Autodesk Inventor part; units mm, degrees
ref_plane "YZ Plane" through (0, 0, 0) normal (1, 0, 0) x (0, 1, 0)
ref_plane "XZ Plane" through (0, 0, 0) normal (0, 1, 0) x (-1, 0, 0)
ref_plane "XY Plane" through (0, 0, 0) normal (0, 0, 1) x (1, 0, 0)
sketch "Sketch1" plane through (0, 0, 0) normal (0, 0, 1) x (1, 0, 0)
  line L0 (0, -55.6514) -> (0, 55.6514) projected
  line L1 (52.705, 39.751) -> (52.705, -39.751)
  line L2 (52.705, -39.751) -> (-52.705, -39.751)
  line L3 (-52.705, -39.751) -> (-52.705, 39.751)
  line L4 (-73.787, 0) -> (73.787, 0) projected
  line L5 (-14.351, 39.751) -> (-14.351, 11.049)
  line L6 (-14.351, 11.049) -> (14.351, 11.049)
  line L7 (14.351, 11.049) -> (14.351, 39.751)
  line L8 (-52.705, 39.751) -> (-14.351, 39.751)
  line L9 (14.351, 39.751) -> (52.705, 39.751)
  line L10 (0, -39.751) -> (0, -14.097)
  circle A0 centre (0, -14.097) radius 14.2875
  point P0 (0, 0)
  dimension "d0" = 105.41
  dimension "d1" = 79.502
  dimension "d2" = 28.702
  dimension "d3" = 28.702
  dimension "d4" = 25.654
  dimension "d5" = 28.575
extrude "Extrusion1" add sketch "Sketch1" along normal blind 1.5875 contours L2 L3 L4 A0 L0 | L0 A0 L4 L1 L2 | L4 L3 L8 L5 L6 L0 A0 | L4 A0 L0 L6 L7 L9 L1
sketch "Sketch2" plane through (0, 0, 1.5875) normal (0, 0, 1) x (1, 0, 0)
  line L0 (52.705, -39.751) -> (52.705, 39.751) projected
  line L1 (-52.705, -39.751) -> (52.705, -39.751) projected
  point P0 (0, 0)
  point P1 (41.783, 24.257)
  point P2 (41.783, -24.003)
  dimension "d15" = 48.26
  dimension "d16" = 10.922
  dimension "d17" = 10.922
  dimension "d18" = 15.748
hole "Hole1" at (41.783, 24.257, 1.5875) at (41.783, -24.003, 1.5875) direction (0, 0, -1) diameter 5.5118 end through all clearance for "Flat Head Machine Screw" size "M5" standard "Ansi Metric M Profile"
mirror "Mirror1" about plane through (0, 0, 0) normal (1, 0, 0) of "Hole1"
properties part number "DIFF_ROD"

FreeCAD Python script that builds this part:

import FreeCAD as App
import Part
import Sketcher
Q = App.Units.Quantity

doc = App.newDocument("Part")
body = doc.addObject("PartDesign::Body", "Body")

# Sketch on XY plane
sketch1 = body.newObject("Sketcher::SketchObject", "Sketch")
sketch1.AttachmentSupport = (doc.getObject("XY_Plane"), [""])
sketch1.MapMode = "FlatFace"
sketch1.addGeometry(Part.LineSegment(App.Vector(-53, -40, 0), App.Vector(53, -40, 0)), False)
sketch1.addGeometry(Part.LineSegment(App.Vector(53, -40, 0), App.Vector(53, 40, 0)), False)
sketch1.addGeometry(Part.LineSegment(App.Vector(53, 40, 0), App.Vector(14, 40, 0)), False)
sketch1.addGeometry(Part.LineSegment(App.Vector(14, 40, 0), App.Vector(14, 11, 0)), False)
sketch1.addGeometry(Part.LineSegment(App.Vector(14, 11, 0), App.Vector(-14, 11, 0)), False)
sketch1.addGeometry(Part.LineSegment(App.Vector(-14, 11, 0), App.Vector(-14, 40, 0)), False)
sketch1.addGeometry(Part.LineSegment(App.Vector(-14, 40, 0), App.Vector(-53, 40, 0)), False)
sketch1.addGeometry(Part.LineSegment(App.Vector(-53, 40, 0), App.Vector(-53, -40, 0)), False)
sketch1.addGeometry(Part.Circle(App.Vector(0, -14, 0), App.Vector(0, 0, 1), 14), False)
sketch1.addConstraint(Sketcher.Constraint("Coincident", 0, 2, 1, 1))
sketch1.addConstraint(Sketcher.Constraint("Coincident", 1, 2, 2, 1))
sketch1.addConstraint(Sketcher.Constraint("Coincident", 2, 2, 3, 1))
sketch1.addConstraint(Sketcher.Constraint("Coincident", 3, 2, 4, 1))
sketch1.addConstraint(Sketcher.Constraint("Coincident", 4, 2, 5, 1))
sketch1.addConstraint(Sketcher.Constraint("Coincident", 5, 2, 6, 1))
sketch1.addConstraint(Sketcher.Constraint("Coincident", 6, 2, 7, 1))
sketch1.addConstraint(Sketcher.Constraint("Coincident", 7, 2, 0, 1))
sketch1.addConstraint(Sketcher.Constraint("Horizontal", 0))
sketch1.addConstraint(Sketcher.Constraint("Vertical", 1))
sketch1.addConstraint(Sketcher.Constraint("Horizontal", 2))
sketch1.addConstraint(Sketcher.Constraint("Vertical", 3))
sketch1.addConstraint(Sketcher.Constraint("Horizontal", 4))
sketch1.addConstraint(Sketcher.Constraint("Vertical", 5))
sketch1.addConstraint(Sketcher.Constraint("Horizontal", 6))
sketch1.addConstraint(Sketcher.Constraint("Vertical", 7))
sketch1.addConstraint(Sketcher.Constraint("Symmetric", 0, 2, 6, 2, -1, 1))
sketch1.addConstraint(Sketcher.Constraint("Symmetric", 2, 2, 5, 2, -2))
sketch1.addConstraint(Sketcher.Constraint("PointOnObject", 8, 3, -2))
sketch1.addConstraint(Sketcher.Constraint("Equal", 4, 3))
sketch1.addConstraint(Sketcher.Constraint("Diameter", 8, Q("1.125 in")))
sketch1.addConstraint(Sketcher.Constraint("DistanceX", 0, 1, 0, 2, Q("4.15 in")))
sketch1.addConstraint(Sketcher.Constraint("DistanceX", 4, 2, 4, 1, Q("1.13 in")))
sketch1.addConstraint(Sketcher.Constraint("DistanceY", 1, 1, 1, 2, Q("3.13 in")))
sketch1.addConstraint(Sketcher.Constraint("DistanceY", 0, 2, 8, 3, Q("1.01 in")))
pad1 = body.newObject("PartDesign::Pad", "Pad")
pad1.Profile = sketch1
pad1.Length = Q("0.0625 in")

# Sketch on XY plane
sketch2 = body.newObject("Sketcher::SketchObject", "Sketch001")
sketch2.AttachmentSupport = (doc.getObject("XY_Plane"), [""])
sketch2.MapMode = "FlatFace"
sketch2.AttachmentOffset = App.Placement(App.Vector(0, 0, 0.0625 * 25.4), App.Rotation())
sketch2.addGeometry(Part.Circle(App.Vector(41.8, 24.3, 0), App.Vector(0, 0, 1), 2.8), False)
sketch2.addGeometry(Part.Circle(App.Vector(41.8, -24, 0), App.Vector(0, 0, 1), 2.8), False)
sketch2.addConstraint(Sketcher.Constraint("Equal", 0, 1))
sketch2.addConstraint(Sketcher.Constraint("Vertical", 0, 3, 1, 3))
sketch2.addConstraint(Sketcher.Constraint("Diameter", 0, Q("0.217 in")))
sketch2.addConstraint(Sketcher.Constraint("DistanceY", 1, 3, 0, 3, Q("1.9 in")))
sketch2.addConstraint(Sketcher.Constraint("DistanceX", -1, 1, 0, 3, Q("1.645 in")))
sketch2.addConstraint(Sketcher.Constraint("DistanceY", -1, 1, 0, 3, Q("0.955 in")))
doc.recompute()
hole = body.newObject("PartDesign::Hole", "Hole")
hole.Profile = sketch2
hole.ThreadType = "None"
hole.Diameter = Q("0.217 in")
hole.DepthType = "ThroughAll"
doc.recompute()

mirrored = body.newObject("PartDesign::Mirrored", "Mirrored")
mirrored.Originals = [hole]
mirrored.MirrorPlane = (doc.getObject("YZ_Plane"), [""])
body.Tip = mirrored

doc.recompute()
